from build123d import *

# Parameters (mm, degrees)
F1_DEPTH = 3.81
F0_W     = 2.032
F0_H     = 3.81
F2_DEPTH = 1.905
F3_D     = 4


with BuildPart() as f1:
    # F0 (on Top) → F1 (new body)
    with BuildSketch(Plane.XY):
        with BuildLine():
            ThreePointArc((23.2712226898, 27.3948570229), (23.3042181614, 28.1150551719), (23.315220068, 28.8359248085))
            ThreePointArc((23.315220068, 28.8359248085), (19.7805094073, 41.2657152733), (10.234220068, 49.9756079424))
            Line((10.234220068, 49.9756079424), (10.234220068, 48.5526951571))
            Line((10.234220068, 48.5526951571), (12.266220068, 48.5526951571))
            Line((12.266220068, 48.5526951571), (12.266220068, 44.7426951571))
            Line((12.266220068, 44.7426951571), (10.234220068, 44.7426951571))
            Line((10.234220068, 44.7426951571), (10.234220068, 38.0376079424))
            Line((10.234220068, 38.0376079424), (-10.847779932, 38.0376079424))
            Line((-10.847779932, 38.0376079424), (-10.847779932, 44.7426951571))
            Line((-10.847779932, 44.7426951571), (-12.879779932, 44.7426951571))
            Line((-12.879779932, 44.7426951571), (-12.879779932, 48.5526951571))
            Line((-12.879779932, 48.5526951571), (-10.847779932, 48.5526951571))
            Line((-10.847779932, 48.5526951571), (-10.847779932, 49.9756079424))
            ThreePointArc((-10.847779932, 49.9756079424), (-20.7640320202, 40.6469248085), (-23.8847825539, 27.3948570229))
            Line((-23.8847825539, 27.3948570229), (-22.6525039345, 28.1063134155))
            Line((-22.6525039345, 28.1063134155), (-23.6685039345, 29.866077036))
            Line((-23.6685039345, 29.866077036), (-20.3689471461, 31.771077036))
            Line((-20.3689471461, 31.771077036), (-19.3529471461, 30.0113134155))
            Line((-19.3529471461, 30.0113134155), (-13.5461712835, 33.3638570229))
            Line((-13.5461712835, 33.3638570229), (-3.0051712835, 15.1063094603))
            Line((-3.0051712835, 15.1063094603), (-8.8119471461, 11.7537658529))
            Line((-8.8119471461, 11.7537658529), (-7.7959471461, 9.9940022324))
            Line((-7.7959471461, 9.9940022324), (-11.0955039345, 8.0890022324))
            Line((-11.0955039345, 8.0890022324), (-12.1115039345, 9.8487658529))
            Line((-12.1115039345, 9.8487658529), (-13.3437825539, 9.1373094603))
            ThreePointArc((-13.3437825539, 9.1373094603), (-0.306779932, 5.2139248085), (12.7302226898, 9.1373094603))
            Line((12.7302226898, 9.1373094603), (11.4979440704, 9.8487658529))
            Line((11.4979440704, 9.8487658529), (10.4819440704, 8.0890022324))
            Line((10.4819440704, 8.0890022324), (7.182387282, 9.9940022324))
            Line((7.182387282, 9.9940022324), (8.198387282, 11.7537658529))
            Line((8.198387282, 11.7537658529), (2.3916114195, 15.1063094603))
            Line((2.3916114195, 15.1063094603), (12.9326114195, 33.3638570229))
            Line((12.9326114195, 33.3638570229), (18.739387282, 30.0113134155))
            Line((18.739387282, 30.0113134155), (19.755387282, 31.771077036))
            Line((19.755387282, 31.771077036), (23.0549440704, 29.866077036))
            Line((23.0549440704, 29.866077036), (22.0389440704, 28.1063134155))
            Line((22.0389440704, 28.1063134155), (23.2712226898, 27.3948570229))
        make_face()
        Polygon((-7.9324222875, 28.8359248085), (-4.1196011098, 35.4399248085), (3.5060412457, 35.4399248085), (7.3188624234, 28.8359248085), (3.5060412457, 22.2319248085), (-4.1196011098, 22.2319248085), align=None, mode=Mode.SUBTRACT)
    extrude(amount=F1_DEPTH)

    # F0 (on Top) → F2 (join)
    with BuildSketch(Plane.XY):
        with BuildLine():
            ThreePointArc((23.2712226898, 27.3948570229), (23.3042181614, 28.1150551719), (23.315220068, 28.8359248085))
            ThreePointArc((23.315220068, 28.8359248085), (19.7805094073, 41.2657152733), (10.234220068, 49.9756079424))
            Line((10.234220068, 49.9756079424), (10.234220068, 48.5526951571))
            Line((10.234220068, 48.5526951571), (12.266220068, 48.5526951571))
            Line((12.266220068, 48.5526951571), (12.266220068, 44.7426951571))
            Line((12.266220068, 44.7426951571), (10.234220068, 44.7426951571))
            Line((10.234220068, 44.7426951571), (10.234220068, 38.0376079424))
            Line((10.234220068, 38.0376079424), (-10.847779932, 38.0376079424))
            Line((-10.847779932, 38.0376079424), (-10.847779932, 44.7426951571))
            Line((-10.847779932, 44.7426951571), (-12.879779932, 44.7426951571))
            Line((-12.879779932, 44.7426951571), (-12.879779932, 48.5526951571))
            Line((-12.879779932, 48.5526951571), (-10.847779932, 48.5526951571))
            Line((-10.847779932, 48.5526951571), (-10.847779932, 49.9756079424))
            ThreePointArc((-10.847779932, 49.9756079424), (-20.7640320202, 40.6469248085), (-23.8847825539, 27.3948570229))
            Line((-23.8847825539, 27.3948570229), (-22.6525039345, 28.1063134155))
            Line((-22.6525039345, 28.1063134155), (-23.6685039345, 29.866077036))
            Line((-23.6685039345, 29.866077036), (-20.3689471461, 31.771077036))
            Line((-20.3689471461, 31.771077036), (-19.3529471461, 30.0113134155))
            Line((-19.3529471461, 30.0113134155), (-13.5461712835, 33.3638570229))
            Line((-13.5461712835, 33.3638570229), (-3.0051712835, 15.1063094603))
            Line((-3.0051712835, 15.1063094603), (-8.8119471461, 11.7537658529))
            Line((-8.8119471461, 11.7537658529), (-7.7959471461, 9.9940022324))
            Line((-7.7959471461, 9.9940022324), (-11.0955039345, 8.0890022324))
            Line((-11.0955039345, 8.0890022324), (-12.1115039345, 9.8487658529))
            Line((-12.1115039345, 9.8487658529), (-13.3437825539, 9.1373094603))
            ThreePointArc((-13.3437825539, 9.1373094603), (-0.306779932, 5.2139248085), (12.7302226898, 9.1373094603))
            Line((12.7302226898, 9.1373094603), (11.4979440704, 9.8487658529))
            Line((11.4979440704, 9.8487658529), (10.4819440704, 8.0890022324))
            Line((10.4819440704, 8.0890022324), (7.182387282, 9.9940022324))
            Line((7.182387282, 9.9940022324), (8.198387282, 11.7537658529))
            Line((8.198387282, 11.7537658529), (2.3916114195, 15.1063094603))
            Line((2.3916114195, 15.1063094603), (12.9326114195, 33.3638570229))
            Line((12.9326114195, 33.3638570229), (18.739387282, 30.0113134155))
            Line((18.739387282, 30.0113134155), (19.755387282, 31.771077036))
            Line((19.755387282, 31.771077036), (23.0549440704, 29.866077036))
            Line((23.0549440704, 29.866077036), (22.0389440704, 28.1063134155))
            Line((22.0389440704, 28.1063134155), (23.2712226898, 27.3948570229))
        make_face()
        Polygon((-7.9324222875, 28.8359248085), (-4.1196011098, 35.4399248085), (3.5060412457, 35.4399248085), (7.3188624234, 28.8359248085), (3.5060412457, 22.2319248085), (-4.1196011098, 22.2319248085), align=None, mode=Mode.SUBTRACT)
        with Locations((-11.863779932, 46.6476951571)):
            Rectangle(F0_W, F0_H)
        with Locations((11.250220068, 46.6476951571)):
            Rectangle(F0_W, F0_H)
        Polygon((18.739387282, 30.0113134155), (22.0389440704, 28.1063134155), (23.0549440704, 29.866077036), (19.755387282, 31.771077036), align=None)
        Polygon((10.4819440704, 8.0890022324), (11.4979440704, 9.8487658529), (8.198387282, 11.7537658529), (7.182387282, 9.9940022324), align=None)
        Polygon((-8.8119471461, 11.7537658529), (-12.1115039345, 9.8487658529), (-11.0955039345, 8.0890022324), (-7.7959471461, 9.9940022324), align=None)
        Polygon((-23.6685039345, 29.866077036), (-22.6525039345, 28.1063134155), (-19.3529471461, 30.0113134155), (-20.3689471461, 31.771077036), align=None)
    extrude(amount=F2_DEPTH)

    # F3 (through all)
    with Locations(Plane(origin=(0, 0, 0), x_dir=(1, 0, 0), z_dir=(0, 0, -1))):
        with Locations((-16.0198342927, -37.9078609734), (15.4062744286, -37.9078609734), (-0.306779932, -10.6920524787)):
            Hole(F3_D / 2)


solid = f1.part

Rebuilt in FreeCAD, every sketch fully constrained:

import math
import FreeCAD as App
import Part
import Sketcher
from FreeCAD import Vector
Q = App.Units.Quantity


def add_polygon(sketch, points):
    """Adds a closed chain of lines whose ends are joined by coincident constraints."""
    first, n = sketch.GeometryCount, len(points)
    for a, b in zip(points, points[1:] + points[:1]):
        sketch.addGeometry(Part.LineSegment(App.Vector(*a, 0), App.Vector(*b, 0)), False)
    for i in range(n):
        sketch.addConstraint(Sketcher.Constraint("Coincident", first + i, 2, first + (i + 1) % n, 1))

doc = App.newDocument("Part")
body = doc.addObject("PartDesign::Body", "Body")

sketch1 = doc.addObject("Sketcher::SketchObject", "Sketch")
body.addObject(sketch1)
sketch1.AttachmentSupport = (doc.XY_Plane, [""])
sketch1.MapMode = "FlatFace"
sketch1.addGeometry(Part.ArcOfCircle(Part.Circle(Vector(-0.3, 28.8, 0), Vector(0, 0, 1), 23.6), math.radians(-3.5), math.radians(0)), False)
sketch1.addGeometry(Part.ArcOfCircle(Part.Circle(Vector(-0.3, 28.8, 0), Vector(0, 0, 1), 23.6), math.radians(0), math.radians(63)), False)
sketch1.addGeometry(Part.LineSegment(Vector(10.2, 50, 0), Vector(10.2, 48.6, 0)), False)
sketch1.addGeometry(Part.LineSegment(Vector(10.2, 48.6, 0), Vector(12.3, 48.6, 0)), False)
sketch1.addGeometry(Part.LineSegment(Vector(12.3, 48.6, 0), Vector(12.3, 44.7, 0)), False)
sketch1.addGeometry(Part.LineSegment(Vector(12.3, 44.7, 0), Vector(10.2, 44.7, 0)), False)
sketch1.addGeometry(Part.LineSegment(Vector(10.2, 44.7, 0), Vector(10.2, 38, 0)), False)
sketch1.addGeometry(Part.LineSegment(Vector(10.2, 38, 0), Vector(-10.8, 38, 0)), False)
sketch1.addGeometry(Part.LineSegment(Vector(-10.8, 38, 0), Vector(-10.8, 44.7, 0)), False)
sketch1.addGeometry(Part.LineSegment(Vector(-10.8, 44.7, 0), Vector(-12.9, 44.7, 0)), False)
sketch1.addGeometry(Part.LineSegment(Vector(-12.9, 44.7, 0), Vector(-12.9, 48.6, 0)), False)
sketch1.addGeometry(Part.LineSegment(Vector(-12.9, 48.6, 0), Vector(-10.8, 48.6, 0)), False)
sketch1.addGeometry(Part.LineSegment(Vector(-10.8, 48.6, 0), Vector(-10.8, 50, 0)), False)
sketch1.addGeometry(Part.ArcOfCircle(Part.Circle(Vector(-0.3, 28.8, 0), Vector(0, 0, 1), 23.6), math.radians(117), math.radians(183)), False)
sketch1.addGeometry(Part.LineSegment(Vector(-23.9, 27.4, 0), Vector(-22.7, 28.1, 0)), False)
sketch1.addGeometry(Part.LineSegment(Vector(-22.7, 28.1, 0), Vector(-23.7, 29.9, 0)), False)
sketch1.addGeometry(Part.LineSegment(Vector(-23.7, 29.9, 0), Vector(-20.4, 31.8, 0)), False)
sketch1.addGeometry(Part.LineSegment(Vector(-20.4, 31.8, 0), Vector(-19.4, 30, 0)), False)
sketch1.addGeometry(Part.LineSegment(Vector(-19.4, 30, 0), Vector(-13.5, 33.4, 0)), False)
sketch1.addGeometry(Part.LineSegment(Vector(-13.5, 33.4, 0), Vector(-3, 15.1, 0)), False)
sketch1.addGeometry(Part.LineSegment(Vector(-3, 15.1, 0), Vector(-8.8, 11.8, 0)), False)
sketch1.addGeometry(Part.LineSegment(Vector(-8.8, 11.8, 0), Vector(-7.8, 10, 0)), False)
sketch1.addGeometry(Part.LineSegment(Vector(-7.8, 10, 0), Vector(-11.1, 8.1, 0)), False)
sketch1.addGeometry(Part.LineSegment(Vector(-11.1, 8.1, 0), Vector(-12.1, 9.8, 0)), False)
sketch1.addGeometry(Part.LineSegment(Vector(-12.1, 9.8, 0), Vector(-13.3, 9.1, 0)), False)
sketch1.addGeometry(Part.ArcOfCircle(Part.Circle(Vector(-0.3, 28.8, 0), Vector(0, 0, 1), 23.6), math.radians(-123), math.radians(-57)), False)
sketch1.addGeometry(Part.LineSegment(Vector(12.7, 9.1, 0), Vector(11.5, 9.8, 0)), False)
sketch1.addGeometry(Part.LineSegment(Vector(11.5, 9.8, 0), Vector(10.5, 8.1, 0)), False)
sketch1.addGeometry(Part.LineSegment(Vector(10.5, 8.1, 0), Vector(7.2, 10, 0)), False)
sketch1.addGeometry(Part.LineSegment(Vector(7.2, 10, 0), Vector(8.2, 11.8, 0)), False)
sketch1.addGeometry(Part.LineSegment(Vector(8.2, 11.8, 0), Vector(2.4, 15.1, 0)), False)
sketch1.addGeometry(Part.LineSegment(Vector(2.4, 15.1, 0), Vector(12.9, 33.4, 0)), False)
sketch1.addGeometry(Part.LineSegment(Vector(12.9, 33.4, 0), Vector(18.7, 30, 0)), False)
sketch1.addGeometry(Part.LineSegment(Vector(18.7, 30, 0), Vector(19.8, 31.8, 0)), False)
sketch1.addGeometry(Part.LineSegment(Vector(19.8, 31.8, 0), Vector(23.1, 29.9, 0)), False)
sketch1.addGeometry(Part.LineSegment(Vector(23.1, 29.9, 0), Vector(22, 28.1, 0)), False)
sketch1.addGeometry(Part.LineSegment(Vector(22, 28.1, 0), Vector(23.3, 27.4, 0)), False)
add_polygon(sketch1, [(-4.1, 22.2), (-7.9, 28.8), (-4.1, 35.4), (3.5, 35.4), (7.3, 28.8), (3.5, 22.2)])
sketch1.addConstraint([
    Sketcher.Constraint("Tangent", 0, 2, 1, 1),
    Sketcher.Constraint("Coincident", 1, 2, 2, 1),
    Sketcher.Constraint("Coincident", 2, 2, 3, 1),
    Sketcher.Constraint("Coincident", 3, 2, 4, 1),
    Sketcher.Constraint("Coincident", 4, 2, 5, 1),
    Sketcher.Constraint("Coincident", 5, 2, 6, 1),
    Sketcher.Constraint("Coincident", 6, 2, 7, 1),
    Sketcher.Constraint("Coincident", 7, 2, 8, 1),
    Sketcher.Constraint("Coincident", 8, 2, 9, 1),
    Sketcher.Constraint("Coincident", 9, 2, 10, 1),
    Sketcher.Constraint("Coincident", 10, 2, 11, 1),
    Sketcher.Constraint("Coincident", 11, 2, 12, 1),
    Sketcher.Constraint("Coincident", 12, 2, 13, 1),
    Sketcher.Constraint("Coincident", 13, 2, 14, 1),
    Sketcher.Constraint("Coincident", 14, 2, 15, 1),
    Sketcher.Constraint("Coincident", 15, 2, 16, 1),
    Sketcher.Constraint("Coincident", 16, 2, 17, 1),
    Sketcher.Constraint("Coincident", 17, 2, 18, 1),
    Sketcher.Constraint("Coincident", 18, 2, 19, 1),
    Sketcher.Constraint("Coincident", 19, 2, 20, 1),
    Sketcher.Constraint("Coincident", 20, 2, 21, 1),
    Sketcher.Constraint("Coincident", 21, 2, 22, 1),
    Sketcher.Constraint("Coincident", 22, 2, 23, 1),
    Sketcher.Constraint("Coincident", 23, 2, 24, 1),
    Sketcher.Constraint("Coincident", 24, 2, 25, 1),
    Sketcher.Constraint("Coincident", 25, 2, 26, 1),
    Sketcher.Constraint("Coincident", 26, 2, 27, 1),
    Sketcher.Constraint("Coincident", 27, 2, 28, 1),
    Sketcher.Constraint("Coincident", 28, 2, 29, 1),
    Sketcher.Constraint("Coincident", 29, 2, 30, 1),
    Sketcher.Constraint("Coincident", 30, 2, 31, 1),
    Sketcher.Constraint("Coincident", 31, 2, 32, 1),
    Sketcher.Constraint("Coincident", 32, 2, 33, 1),
    Sketcher.Constraint("Coincident", 33, 2, 34, 1),
    Sketcher.Constraint("Coincident", 34, 2, 35, 1),
    Sketcher.Constraint("Coincident", 35, 2, 36, 1),
    Sketcher.Constraint("Coincident", 36, 2, 0, 1),
    Sketcher.Constraint("Vertical", 2),
    Sketcher.Constraint("Horizontal", 3),
    Sketcher.Constraint("Vertical", 4),
    Sketcher.Constraint("Horizontal", 5),
    Sketcher.Constraint("Vertical", 6),
    Sketcher.Constraint("Horizontal", 7),
    Sketcher.Constraint("Vertical", 8),
    Sketcher.Constraint("Horizontal", 9),
    Sketcher.Constraint("Vertical", 10),
    Sketcher.Constraint("Horizontal", 11),
    Sketcher.Constraint("Vertical", 12),
    Sketcher.Constraint("Horizontal", 39),
    Sketcher.Constraint("Horizontal", 42),
    Sketcher.Constraint("Coincident", 13, 3, 0, 3),
    Sketcher.Constraint("Coincident", 25, 3, 0, 3),
    Sketcher.Constraint("Equal", 0, 1),
    Sketcher.Constraint("Equal", 1, 13),
    Sketcher.Constraint("Equal", 13, 25),
    Sketcher.Constraint("Perpendicular", 14, 15),
    Sketcher.Constraint("Perpendicular", 15, 16),
    Sketcher.Constraint("Perpendicular", 16, 17),
    Sketcher.Constraint("Perpendicular", 17, 18),
    Sketcher.Constraint("Perpendicular", 18, 19),
    Sketcher.Constraint("Perpendicular", 19, 20),
    Sketcher.Constraint("Perpendicular", 20, 21),
    Sketcher.Constraint("Perpendicular", 21, 22),
    Sketcher.Constraint("Perpendicular", 22, 23),
    Sketcher.Constraint("Perpendicular", 23, 24),
    Sketcher.Constraint("Perpendicular", 26, 27),
    Sketcher.Constraint("Perpendicular", 27, 28),
    Sketcher.Constraint("Perpendicular", 28, 29),
    Sketcher.Constraint("Perpendicular", 29, 30),
    Sketcher.Constraint("Perpendicular", 30, 31),
    Sketcher.Constraint("Perpendicular", 31, 32),
    Sketcher.Constraint("Perpendicular", 32, 33),
    Sketcher.Constraint("Perpendicular", 33, 34),
    Sketcher.Constraint("Perpendicular", 34, 35),
    Sketcher.Constraint("Perpendicular", 35, 36),
    Sketcher.Constraint("Perpendicular", 24, 37),
    Sketcher.Constraint("Perpendicular", 36, 38),
    Sketcher.Constraint("Parallel", 37, 40),
    Sketcher.Constraint("Parallel", 38, 41),
    Sketcher.Constraint("Horizontal", 25, 3, 0, 2),
    Sketcher.Constraint("Horizontal", 5, 2, 8, 2),
    Sketcher.Constraint("Horizontal", 3, 2, 10, 2),
    Sketcher.Constraint("Horizontal", 1, 2, 12, 2),
    Sketcher.Constraint("Horizontal", 24, 2, 25, 2),
    Sketcher.Constraint("Horizontal", 23, 2, 26, 2),
    Sketcher.Constraint("Horizontal", 22, 2, 27, 2),
    Sketcher.Constraint("Horizontal", 21, 2, 28, 2),
    Sketcher.Constraint("Horizontal", 20, 2, 29, 2),
    Sketcher.Constraint("Horizontal", 19, 2, 30, 2),
    Sketcher.Constraint("Horizontal", 18, 2, 31, 2),
    Sketcher.Constraint("Horizontal", 17, 2, 32, 2),
    Sketcher.Constraint("Horizontal", 16, 2, 33, 2),
    Sketcher.Constraint("Horizontal", 15, 2, 34, 2),
    Sketcher.Constraint("Horizontal", 14, 2, 35, 2),
    Sketcher.Constraint("Horizontal", 13, 2, 36, 2),
    Sketcher.Constraint("Horizontal", 0, 2, 37, 2),
    Sketcher.Constraint("Horizontal", 37, 2, 40, 2),
    Sketcher.Constraint("Vertical", 2, 2, 5, 2),
    Sketcher.Constraint("Vertical", 8, 2, 11, 2),
    Sketcher.Constraint("Vertical", 39, 2, 41, 2),
    Sketcher.Constraint("Equal", 5, 9),
    Sketcher.Constraint("Equal", 15, 17),
    Sketcher.Constraint("Equal", 18, 20),
    Sketcher.Constraint("Equal", 17, 21),
    Sketcher.Constraint("Equal", 16, 22),
    Sketcher.Constraint("Equal", 21, 23),
    Sketcher.Constraint("Equal", 14, 24),
    Sketcher.Constraint("Radius", 0, Q("0.93 in")),
    Sketcher.Constraint("Angle", 14, Q("30 deg")),
    Sketcher.Constraint("DistanceX", 3, 1, 3, 2, Q("0.08 in")),
    Sketcher.Constraint("DistanceX", 7, 2, 7, 1, Q("0.83 in")),
    Sketcher.Constraint("DistanceY", 4, 2, 4, 1, Q("0.15 in")),
    Sketcher.Constraint("Distance", 15, Q("0.08 in")),
    Sketcher.Constraint("Distance", 16, Q("0.15 in")),
    Sketcher.Constraint("Distance", 19, Q("0.83 in")),
    Sketcher.Constraint("DistanceY", 6, 2, 1, 2, Q("0.47 in")),
    Sketcher.Constraint("DistanceY", 37, 2, 38, 2, Q("0.26 in")),
    Sketcher.Constraint("DistanceY", 24, 2, 19, 2, Q("0.235 in")),
    Sketcher.Constraint("DistanceX", 37, 2, -1, 1, Q("0.3123001 in")),
    Sketcher.Constraint("DistanceX", 39, 1, 39, 2, Q("7.625642 mm")),
    Sketcher.Constraint("DistanceY", 2, 2, 2, 1, Q("1.422913 mm")),
    Sketcher.Constraint("DistanceX", 0, 3, -1, 1, Q("0.30678 mm")),
    Sketcher.Constraint("DistanceY", -1, 1, 19, 2, Q("15.106309 mm")),
    Sketcher.Constraint("DistanceX", 13, 2, 14, 2, Q("1.232279 mm")),
])
pad1 = doc.addObject("PartDesign::Pad", "Pad")
body.addObject(pad1)
pad1.Profile = sketch1
pad1.Length = Q("0.15 in")

sketch2 = doc.addObject("Sketcher::SketchObject", "Sketch001")
body.addObject(sketch2)
sketch2.AttachmentSupport = (doc.XY_Plane, [""])
sketch2.MapMode = "FlatFace"
sketch2.addGeometry(Part.ArcOfCircle(Part.Circle(Vector(-0.3, 28.8, 0), Vector(0, 0, 1), 23.6), math.radians(-3.5), math.radians(0)), False)
sketch2.addGeometry(Part.ArcOfCircle(Part.Circle(Vector(-0.3, 28.8, 0), Vector(0, 0, 1), 23.6), math.radians(0), math.radians(63)), False)
sketch2.addGeometry(Part.LineSegment(Vector(10.2, 50, 0), Vector(10.2, 38, 0)), False)
sketch2.addGeometry(Part.LineSegment(Vector(10.2, 38, 0), Vector(-10.8, 38, 0)), False)
sketch2.addGeometry(Part.LineSegment(Vector(-10.8, 38, 0), Vector(-10.8, 50, 0)), False)
sketch2.addGeometry(Part.ArcOfCircle(Part.Circle(Vector(-0.3, 28.8, 0), Vector(0, 0, 1), 23.6), math.radians(117), math.radians(183)), False)
sketch2.addGeometry(Part.LineSegment(Vector(-23.9, 27.4, 0), Vector(-22.7, 28.1, 0)), False)
sketch2.addGeometry(Part.LineSegment(Vector(-22.7, 28.1, 0), Vector(-19.4, 30, 0)), False)
sketch2.addGeometry(Part.LineSegment(Vector(-19.4, 30, 0), Vector(-13.5, 33.4, 0)), False)
sketch2.addGeometry(Part.LineSegment(Vector(-13.5, 33.4, 0), Vector(-3, 15.1, 0)), False)
sketch2.addGeometry(Part.LineSegment(Vector(-3, 15.1, 0), Vector(-8.8, 11.8, 0)), False)
sketch2.addGeometry(Part.LineSegment(Vector(-8.8, 11.8, 0), Vector(-12.1, 9.8, 0)), False)
sketch2.addGeometry(Part.LineSegment(Vector(-12.1, 9.8, 0), Vector(-13.3, 9.1, 0)), False)
sketch2.addGeometry(Part.ArcOfCircle(Part.Circle(Vector(-0.3, 28.8, 0), Vector(0, 0, 1), 23.6), math.radians(-123), math.radians(-57)), False)
sketch2.addGeometry(Part.LineSegment(Vector(12.7, 9.1, 0), Vector(11.5, 9.8, 0)), False)
sketch2.addGeometry(Part.LineSegment(Vector(11.5, 9.8, 0), Vector(8.2, 11.8, 0)), False)
sketch2.addGeometry(Part.LineSegment(Vector(8.2, 11.8, 0), Vector(2.4, 15.1, 0)), False)
sketch2.addGeometry(Part.LineSegment(Vector(2.4, 15.1, 0), Vector(12.9, 33.4, 0)), False)
sketch2.addGeometry(Part.LineSegment(Vector(12.9, 33.4, 0), Vector(18.7, 30, 0)), False)
sketch2.addGeometry(Part.LineSegment(Vector(18.7, 30, 0), Vector(22, 28.1, 0)), False)
sketch2.addGeometry(Part.LineSegment(Vector(22, 28.1, 0), Vector(23.3, 27.4, 0)), False)
add_polygon(sketch2, [(-4.1, 22.2), (-7.9, 28.8), (-4.1, 35.4), (3.5, 35.4), (7.3, 28.8), (3.5, 22.2)])
sketch2.addConstraint([
    Sketcher.Constraint("Tangent", 0, 2, 1, 1),
    Sketcher.Constraint("Coincident", 1, 2, 2, 1),
    Sketcher.Constraint("Coincident", 2, 2, 3, 1),
    Sketcher.Constraint("Coincident", 3, 2, 4, 1),
    Sketcher.Constraint("Coincident", 4, 2, 5, 1),
    Sketcher.Constraint("Coincident", 5, 2, 6, 1),
    Sketcher.Constraint("Coincident", 6, 2, 7, 1),
    Sketcher.Constraint("Coincident", 7, 2, 8, 1),
    Sketcher.Constraint("Coincident", 8, 2, 9, 1),
    Sketcher.Constraint("Coincident", 9, 2, 10, 1),
    Sketcher.Constraint("Coincident", 10, 2, 11, 1),
    Sketcher.Constraint("Coincident", 11, 2, 12, 1),
    Sketcher.Constraint("Coincident", 12, 2, 13, 1),
    Sketcher.Constraint("Coincident", 13, 2, 14, 1),
    Sketcher.Constraint("Coincident", 14, 2, 15, 1),
    Sketcher.Constraint("Coincident", 15, 2, 16, 1),
    Sketcher.Constraint("Coincident", 16, 2, 17, 1),
    Sketcher.Constraint("Coincident", 17, 2, 18, 1),
    Sketcher.Constraint("Coincident", 18, 2, 19, 1),
    Sketcher.Constraint("Coincident", 19, 2, 20, 1),
    Sketcher.Constraint("Coincident", 20, 2, 0, 1),
    Sketcher.Constraint("Vertical", 2),
    Sketcher.Constraint("Horizontal", 3),
    Sketcher.Constraint("Vertical", 4),
    Sketcher.Constraint("Horizontal", 23),
    Sketcher.Constraint("Horizontal", 26),
    Sketcher.Constraint("Coincident", 5, 3, 0, 3),
    Sketcher.Constraint("Coincident", 13, 3, 0, 3),
    Sketcher.Constraint("Equal", 0, 1),
    Sketcher.Constraint("Equal", 1, 5),
    Sketcher.Constraint("Equal", 5, 13),
    Sketcher.Constraint("Parallel", 6, 7),
    Sketcher.Constraint("Parallel", 7, 8),
    Sketcher.Constraint("Perpendicular", 8, 9),
    Sketcher.Constraint("Perpendicular", 9, 10),
    Sketcher.Constraint("Parallel", 10, 11),
    Sketcher.Constraint("Parallel", 11, 12),
    Sketcher.Constraint("Parallel", 14, 15),
    Sketcher.Constraint("Parallel", 15, 16),
    Sketcher.Constraint("Perpendicular", 16, 17),
    Sketcher.Constraint("Perpendicular", 17, 18),
    Sketcher.Constraint("Parallel", 18, 19),
    Sketcher.Constraint("Parallel", 19, 20),
    Sketcher.Constraint("Perpendicular", 12, 21),
    Sketcher.Constraint("Perpendicular", 20, 22),
    Sketcher.Constraint("Parallel", 21, 24),
    Sketcher.Constraint("Parallel", 22, 25),
    Sketcher.Constraint("Horizontal", 13, 3, 0, 2),
    Sketcher.Constraint("Horizontal", 1, 2, 4, 2),
    Sketcher.Constraint("Horizontal", 12, 2, 13, 2),
    Sketcher.Constraint("Horizontal", 11, 2, 14, 2),
    Sketcher.Constraint("Horizontal", 10, 2, 15, 2),
    Sketcher.Constraint("Horizontal", 9, 2, 16, 2),
    Sketcher.Constraint("Horizontal", 8, 2, 17, 2),
    Sketcher.Constraint("Horizontal", 7, 2, 18, 2),
    Sketcher.Constraint("Horizontal", 6, 2, 19, 2),
    Sketcher.Constraint("Horizontal", 5, 2, 20, 2),
    Sketcher.Constraint("Horizontal", 0, 2, 21, 2),
    Sketcher.Constraint("Horizontal", 21, 2, 24, 2),
    Sketcher.Constraint("Vertical", 23, 2, 25, 2),
    Sketcher.Constraint("Equal", 8, 10),
    Sketcher.Constraint("Equal", 7, 11),
    Sketcher.Constraint("Equal", 6, 12),
    Sketcher.Constraint("Radius", 0, Q("0.93 in")),
    Sketcher.Constraint("Angle", 6, Q("30 deg")),
    Sketcher.Constraint("DistanceX", 3, 2, 3, 1, Q("0.83 in")),
    Sketcher.Constraint("DistanceY", 2, 2, 2, 1, Q("0.47 in")),
    Sketcher.Constraint("Distance", 7, Q("0.15 in")),
    Sketcher.Constraint("Distance", 9, Q("0.83 in")),
    Sketcher.Constraint("DistanceY", 21, 2, 22, 2, Q("0.26 in")),
    Sketcher.Constraint("DistanceY", 5, 2, 8, 2, Q("0.235 in")),
    Sketcher.Constraint("DistanceX", 21, 2, -1, 1, Q("0.3123001 in")),
    Sketcher.Constraint("DistanceX", 23, 1, 23, 2, Q("7.625642 mm")),
    Sketcher.Constraint("DistanceX", 0, 3, -1, 1, Q("0.30678 mm")),
    Sketcher.Constraint("DistanceY", -1, 1, 9, 2, Q("15.106309 mm")),
    Sketcher.Constraint("DistanceX", 5, 2, 6, 2, Q("1.232279 mm")),
])
pad2 = doc.addObject("PartDesign::Pad", "Pad001")
body.addObject(pad2)
pad2.Profile = sketch2
pad2.Length = Q("0.075 in")

sketch3 = doc.addObject("Sketcher::SketchObject", "Sketch002")
body.addObject(sketch3)
sketch3.AttachmentSupport = (doc.XY_Plane, [""])
sketch3.MapMode = "FlatFace"
sketch3.addGeometry([
    Part.Circle(Vector(-16, 37.9, 0), Vector(0, 0, 1), 2),
    Part.Circle(Vector(15.4, 37.9, 0), Vector(0, 0, 1), 2),
    Part.Circle(Vector(-0.3, 10.7, 0), Vector(0, 0, 1), 2),
], False)
sketch3.addConstraint([
    Sketcher.Constraint("Equal", 0, 1),
    Sketcher.Constraint("Equal", 1, 2),
    Sketcher.Constraint("Horizontal", 0, 3, 1, 3),
    Sketcher.Constraint("Diameter", 0, Q("4 mm")),
    Sketcher.Constraint("DistanceY", -1, 1, 0, 3, Q("37.907861 mm")),
    Sketcher.Constraint("DistanceX", 2, 3, -1, 1, Q("0.30678 mm")),
    Sketcher.Constraint("DistanceX", 0, 3, 1, 3, Q("31.426109 mm")),
    Sketcher.Constraint("DistanceY", 2, 3, 0, 3, Q("27.215808 mm")),
    Sketcher.Constraint("DistanceX", 0, 3, -1, 1, Q("16.019834 mm")),
])
doc.recompute()
hole = doc.addObject("PartDesign::Hole", "Hole")
body.addObject(hole)
hole.Profile = sketch3
hole.ThreadType = "None"
hole.Diameter = 4
hole.DepthType = "ThroughAll"
hole.Reversed = True

doc.recompute()
